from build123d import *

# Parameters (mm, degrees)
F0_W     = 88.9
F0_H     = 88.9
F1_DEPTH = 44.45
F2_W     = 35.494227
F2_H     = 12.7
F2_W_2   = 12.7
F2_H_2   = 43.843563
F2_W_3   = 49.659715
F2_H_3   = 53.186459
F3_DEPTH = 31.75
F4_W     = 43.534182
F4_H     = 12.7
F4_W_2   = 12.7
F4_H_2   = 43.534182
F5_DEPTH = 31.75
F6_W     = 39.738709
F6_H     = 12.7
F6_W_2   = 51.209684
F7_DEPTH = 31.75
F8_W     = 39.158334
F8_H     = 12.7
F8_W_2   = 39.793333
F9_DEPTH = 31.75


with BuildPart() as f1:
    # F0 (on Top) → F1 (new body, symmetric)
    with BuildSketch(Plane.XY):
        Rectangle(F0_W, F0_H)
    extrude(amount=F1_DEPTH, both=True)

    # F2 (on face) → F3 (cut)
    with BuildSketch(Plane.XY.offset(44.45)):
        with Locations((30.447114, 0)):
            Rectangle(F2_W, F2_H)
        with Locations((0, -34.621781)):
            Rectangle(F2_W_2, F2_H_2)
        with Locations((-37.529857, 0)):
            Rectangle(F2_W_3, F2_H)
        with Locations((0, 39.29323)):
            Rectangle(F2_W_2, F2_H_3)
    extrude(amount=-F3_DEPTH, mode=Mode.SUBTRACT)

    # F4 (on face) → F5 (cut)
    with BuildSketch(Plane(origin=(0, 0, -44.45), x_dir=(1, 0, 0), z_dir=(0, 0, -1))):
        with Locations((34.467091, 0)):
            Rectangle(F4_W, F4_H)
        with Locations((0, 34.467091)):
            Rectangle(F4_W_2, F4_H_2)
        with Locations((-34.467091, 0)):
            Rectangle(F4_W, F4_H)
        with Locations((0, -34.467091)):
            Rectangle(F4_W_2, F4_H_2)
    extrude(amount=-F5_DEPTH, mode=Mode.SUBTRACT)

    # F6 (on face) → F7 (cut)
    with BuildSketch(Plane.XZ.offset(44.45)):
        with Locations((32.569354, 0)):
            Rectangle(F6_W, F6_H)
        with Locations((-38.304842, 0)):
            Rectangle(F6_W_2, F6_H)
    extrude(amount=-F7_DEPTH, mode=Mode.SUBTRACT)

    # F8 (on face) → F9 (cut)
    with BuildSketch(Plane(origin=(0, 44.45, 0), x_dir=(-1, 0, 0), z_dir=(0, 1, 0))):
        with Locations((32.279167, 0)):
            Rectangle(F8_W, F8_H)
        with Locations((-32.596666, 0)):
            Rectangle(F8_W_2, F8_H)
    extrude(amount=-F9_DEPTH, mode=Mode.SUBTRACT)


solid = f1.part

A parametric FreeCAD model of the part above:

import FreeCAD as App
import Part
import Sketcher
Q = App.Units.Quantity


def add_polygon(sketch, points):
    """Adds a closed chain of lines whose ends are joined by coincident constraints."""
    first, n = sketch.GeometryCount, len(points)
    for a, b in zip(points, points[1:] + points[:1]):
        sketch.addGeometry(Part.LineSegment(App.Vector(*a, 0), App.Vector(*b, 0)), False)
    for i in range(n):
        sketch.addConstraint(Sketcher.Constraint("Coincident", first + i, 2, first + (i + 1) % n, 1))

doc = App.newDocument("Part")
body = doc.addObject("PartDesign::Body", "Body")

# Sketch on XY plane
sketch1 = doc.addObject("Sketcher::SketchObject", "Sketch")
body.addObject(sketch1)
sketch1.AttachmentSupport = (doc.XY_Plane, [""])
sketch1.MapMode = "FlatFace"
add_polygon(sketch1, [(-44, 44), (-44, -44), (44, -44), (44, 44)])  # lines 0-3
sketch1.addConstraint([
    Sketcher.Constraint("Vertical", 0),
    Sketcher.Constraint("Horizontal", 1),
    Sketcher.Constraint("Vertical", 2),
    Sketcher.Constraint("Horizontal", 3),
    Sketcher.Constraint("Symmetric", 0, 2, 2, 2, -1, 1),
    Sketcher.Constraint("Equal", 3, 0),
    Sketcher.Constraint("DistanceX", 1, 1, 1, 2, Q("3.5 in")),
])
pad1 = doc.addObject("PartDesign::Pad", "Pad")
body.addObject(pad1)
pad1.Profile = sketch1
pad1.Length = Q("3.5 in")
pad1.Midplane = True

# Sketch on XY plane
sketch2 = doc.addObject("Sketcher::SketchObject", "Sketch001")
body.addObject(sketch2)
sketch2.AttachmentSupport = (doc.XY_Plane, [""])
sketch2.MapMode = "FlatFace"
sketch2.AttachmentOffset = App.Placement(App.Vector(0, 0, 1.75 * 25.4), App.Rotation())
add_polygon(sketch2, [(13, 6), (13, -6), (48, -6), (48, 6)])  # lines 0-3
add_polygon(sketch2, [(-6, -13), (-6, -57), (6, -57), (6, -13)])  # lines 4-7
add_polygon(sketch2, [(-62, 6), (-62, -6), (-13, -6), (-13, 6)])  # lines 8-11
add_polygon(sketch2, [(-6, 66), (-6, 13), (6, 13), (6, 66)])  # lines 12-15
sketch2.addConstraint([
    Sketcher.Constraint("Vertical", 0),
    Sketcher.Constraint("Horizontal", 1),
    Sketcher.Constraint("Vertical", 2),
    Sketcher.Constraint("Horizontal", 3),
    Sketcher.Constraint("Vertical", 4),
    Sketcher.Constraint("Horizontal", 5),
    Sketcher.Constraint("Vertical", 6),
    Sketcher.Constraint("Horizontal", 7),
    Sketcher.Constraint("Vertical", 8),
    Sketcher.Constraint("Horizontal", 9),
    Sketcher.Constraint("Vertical", 10),
    Sketcher.Constraint("Horizontal", 11),
    Sketcher.Constraint("Vertical", 12),
    Sketcher.Constraint("Horizontal", 13),
    Sketcher.Constraint("Vertical", 14),
    Sketcher.Constraint("Horizontal", 15),
    Sketcher.Constraint("Symmetric", 3, 2, 9, 2, -1, 1),
    Sketcher.Constraint("Symmetric", 6, 2, 12, 2, -1, 1),
    Sketcher.Constraint("Horizontal", 1, 2, 8, 2),
    Sketcher.Constraint("Horizontal", 3, 2, 10, 2),
    Sketcher.Constraint("Vertical", 7, 2, 12, 2),
    Sketcher.Constraint("Vertical", 6, 2, 13, 2),
    Sketcher.Constraint("Equal", 15, 0),
    Sketcher.Constraint("DistanceX", 5, 1, 5, 2, Q("0.5 in")),
    Sketcher.Constraint("DistanceX", 9, 2, 0, 2, Q("1 in")),
    Sketcher.Constraint("DistanceY", 7, 2, 12, 2, Q("1 in")),
    Sketcher.Constraint("DistanceY", 12, 2, 12, 1, 53.186459),
    Sketcher.Constraint("DistanceX", 1, 1, 1, 2, 35.494227),
    Sketcher.Constraint("DistanceX", 9, 1, 9, 2, 49.659715),
    Sketcher.Constraint("DistanceY", 4, 2, 4, 1, 43.843563),
])
pocket1 = doc.addObject("PartDesign::Pocket", "Pocket")
body.addObject(pocket1)
pocket1.Profile = sketch2
pocket1.Length = Q("1.25 in")

# Sketch on XY plane
sketch3 = doc.addObject("Sketcher::SketchObject", "Sketch002")
body.addObject(sketch3)
sketch3.AttachmentSupport = (doc.XY_Plane, [""])
sketch3.MapMode = "FlatFace"
sketch3.AttachmentOffset = App.Placement(App.Vector(0, 0, -1.75 * 25.4), App.Rotation())
add_polygon(sketch3, [(13, -6), (13, 6), (56, 6), (56, -6)])  # lines 0-3
add_polygon(sketch3, [(-6, -56), (-6, -13), (6, -13), (6, -56)])  # lines 4-7
add_polygon(sketch3, [(-56, -6), (-56, 6), (-13, 6), (-13, -6)])  # lines 8-11
add_polygon(sketch3, [(-6, 13), (-6, 56), (6, 56), (6, 13)])  # lines 12-15
sketch3.addConstraint([
    Sketcher.Constraint("Vertical", 0),
    Sketcher.Constraint("Horizontal", 1),
    Sketcher.Constraint("Vertical", 2),
    Sketcher.Constraint("Horizontal", 3),
    Sketcher.Constraint("Vertical", 4),
    Sketcher.Constraint("Horizontal", 5),
    Sketcher.Constraint("Vertical", 6),
    Sketcher.Constraint("Horizontal", 7),
    Sketcher.Constraint("Vertical", 8),
    Sketcher.Constraint("Horizontal", 9),
    Sketcher.Constraint("Vertical", 10),
    Sketcher.Constraint("Horizontal", 11),
    Sketcher.Constraint("Vertical", 12),
    Sketcher.Constraint("Horizontal", 13),
    Sketcher.Constraint("Vertical", 14),
    Sketcher.Constraint("Horizontal", 15),
    Sketcher.Constraint("Symmetric", 2, 2, 8, 2, -1, 1),
    Sketcher.Constraint("Symmetric", 0, 2, 10, 2, -1, 1),
    Sketcher.Constraint("Symmetric", 6, 2, 12, 2, -1, 1),
    Sketcher.Constraint("Symmetric", 4, 2, 14, 2, -1, 1),
    Sketcher.Constraint("Horizontal", 1, 2, 8, 2),
    Sketcher.Constraint("Vertical", 7, 2, 12, 2),
    Sketcher.Constraint("Equal", 15, 0),
    Sketcher.Constraint("Equal", 11, 4),
    Sketcher.Constraint("DistanceX", 5, 1, 5, 2, Q("0.5 in")),
    Sketcher.Constraint("DistanceX", 9, 2, 0, 2, Q("1 in")),
    Sketcher.Constraint("DistanceY", 5, 2, 14, 2, Q("1 in")),
    Sketcher.Constraint("DistanceX", 1, 1, 1, 2, 43.534182),
])
pocket2 = doc.addObject("PartDesign::Pocket", "Pocket001")
body.addObject(pocket2)
pocket2.Profile = sketch3
pocket2.Length = Q("1.25 in")
pocket2.Reversed = True

# Sketch on XZ plane
sketch4 = doc.addObject("Sketcher::SketchObject", "Sketch003")
body.addObject(sketch4)
sketch4.AttachmentSupport = (doc.XZ_Plane, [""])
sketch4.MapMode = "FlatFace"
sketch4.AttachmentOffset = App.Placement(App.Vector(0, 0, 1.75 * 25.4), App.Rotation())
add_polygon(sketch4, [(13, 6), (13, -6), (52, -6), (52, 6)])  # lines 0-3
add_polygon(sketch4, [(-64, 6), (-64, -6), (-13, -6), (-13, 6)])  # lines 4-7
sketch4.addConstraint([
    Sketcher.Constraint("Vertical", 0),
    Sketcher.Constraint("Horizontal", 1),
    Sketcher.Constraint("Vertical", 2),
    Sketcher.Constraint("Horizontal", 3),
    Sketcher.Constraint("Vertical", 4),
    Sketcher.Constraint("Horizontal", 5),
    Sketcher.Constraint("Vertical", 6),
    Sketcher.Constraint("Horizontal", 7),
    Sketcher.Constraint("Symmetric", 3, 2, 5, 2, -1, 1),
    Sketcher.Constraint("Horizontal", 1, 2, 4, 2),
    Sketcher.Constraint("Horizontal", 3, 2, 6, 2),
    Sketcher.Constraint("DistanceY", 0, 2, 0, 1, Q("0.5 in")),
    Sketcher.Constraint("DistanceX", 5, 2, 0, 2, Q("1 in")),
    Sketcher.Constraint("DistanceX", 1, 1, 1, 2, 39.738709),
    Sketcher.Constraint("DistanceX", 5, 1, 5, 2, 51.209684),
])
pocket3 = doc.addObject("PartDesign::Pocket", "Pocket002")
body.addObject(pocket3)
pocket3.Profile = sketch4
pocket3.Length = Q("1.25 in")

# Sketch on XZ plane
sketch5 = doc.addObject("Sketcher::SketchObject", "Sketch004")
body.addObject(sketch5)
sketch5.AttachmentSupport = (doc.XZ_Plane, [""])
sketch5.MapMode = "FlatFace"
sketch5.AttachmentOffset = App.Placement(App.Vector(0, 0, -1.75 * 25.4), App.Rotation())
add_polygon(sketch5, [(-13, 6), (-13, -6), (-52, -6), (-52, 6)])  # lines 0-3
add_polygon(sketch5, [(52, 6), (52, -6), (13, -6), (13, 6)])  # lines 4-7
sketch5.addConstraint([
    Sketcher.Constraint("Vertical", 0),
    Sketcher.Constraint("Horizontal", 1),
    Sketcher.Constraint("Vertical", 2),
    Sketcher.Constraint("Horizontal", 3),
    Sketcher.Constraint("Vertical", 4),
    Sketcher.Constraint("Horizontal", 5),
    Sketcher.Constraint("Vertical", 6),
    Sketcher.Constraint("Horizontal", 7),
    Sketcher.Constraint("Symmetric", 3, 2, 5, 2, -1, 1),
    Sketcher.Constraint("Horizontal", 1, 2, 4, 2),
    Sketcher.Constraint("Horizontal", 3, 2, 6, 2),
    Sketcher.Constraint("DistanceY", 0, 2, 0, 1, Q("0.5 in")),
    Sketcher.Constraint("DistanceX", 0, 2, 5, 2, Q("1 in")),
    Sketcher.Constraint("DistanceX", 1, 2, 1, 1, 39.158334),
    Sketcher.Constraint("DistanceX", 5, 2, 5, 1, 39.793333),
])
pocket4 = doc.addObject("PartDesign::Pocket", "Pocket003")
body.addObject(pocket4)
pocket4.Profile = sketch5
pocket4.Length = Q("1.25 in")
pocket4.Reversed = True

doc.recompute()
